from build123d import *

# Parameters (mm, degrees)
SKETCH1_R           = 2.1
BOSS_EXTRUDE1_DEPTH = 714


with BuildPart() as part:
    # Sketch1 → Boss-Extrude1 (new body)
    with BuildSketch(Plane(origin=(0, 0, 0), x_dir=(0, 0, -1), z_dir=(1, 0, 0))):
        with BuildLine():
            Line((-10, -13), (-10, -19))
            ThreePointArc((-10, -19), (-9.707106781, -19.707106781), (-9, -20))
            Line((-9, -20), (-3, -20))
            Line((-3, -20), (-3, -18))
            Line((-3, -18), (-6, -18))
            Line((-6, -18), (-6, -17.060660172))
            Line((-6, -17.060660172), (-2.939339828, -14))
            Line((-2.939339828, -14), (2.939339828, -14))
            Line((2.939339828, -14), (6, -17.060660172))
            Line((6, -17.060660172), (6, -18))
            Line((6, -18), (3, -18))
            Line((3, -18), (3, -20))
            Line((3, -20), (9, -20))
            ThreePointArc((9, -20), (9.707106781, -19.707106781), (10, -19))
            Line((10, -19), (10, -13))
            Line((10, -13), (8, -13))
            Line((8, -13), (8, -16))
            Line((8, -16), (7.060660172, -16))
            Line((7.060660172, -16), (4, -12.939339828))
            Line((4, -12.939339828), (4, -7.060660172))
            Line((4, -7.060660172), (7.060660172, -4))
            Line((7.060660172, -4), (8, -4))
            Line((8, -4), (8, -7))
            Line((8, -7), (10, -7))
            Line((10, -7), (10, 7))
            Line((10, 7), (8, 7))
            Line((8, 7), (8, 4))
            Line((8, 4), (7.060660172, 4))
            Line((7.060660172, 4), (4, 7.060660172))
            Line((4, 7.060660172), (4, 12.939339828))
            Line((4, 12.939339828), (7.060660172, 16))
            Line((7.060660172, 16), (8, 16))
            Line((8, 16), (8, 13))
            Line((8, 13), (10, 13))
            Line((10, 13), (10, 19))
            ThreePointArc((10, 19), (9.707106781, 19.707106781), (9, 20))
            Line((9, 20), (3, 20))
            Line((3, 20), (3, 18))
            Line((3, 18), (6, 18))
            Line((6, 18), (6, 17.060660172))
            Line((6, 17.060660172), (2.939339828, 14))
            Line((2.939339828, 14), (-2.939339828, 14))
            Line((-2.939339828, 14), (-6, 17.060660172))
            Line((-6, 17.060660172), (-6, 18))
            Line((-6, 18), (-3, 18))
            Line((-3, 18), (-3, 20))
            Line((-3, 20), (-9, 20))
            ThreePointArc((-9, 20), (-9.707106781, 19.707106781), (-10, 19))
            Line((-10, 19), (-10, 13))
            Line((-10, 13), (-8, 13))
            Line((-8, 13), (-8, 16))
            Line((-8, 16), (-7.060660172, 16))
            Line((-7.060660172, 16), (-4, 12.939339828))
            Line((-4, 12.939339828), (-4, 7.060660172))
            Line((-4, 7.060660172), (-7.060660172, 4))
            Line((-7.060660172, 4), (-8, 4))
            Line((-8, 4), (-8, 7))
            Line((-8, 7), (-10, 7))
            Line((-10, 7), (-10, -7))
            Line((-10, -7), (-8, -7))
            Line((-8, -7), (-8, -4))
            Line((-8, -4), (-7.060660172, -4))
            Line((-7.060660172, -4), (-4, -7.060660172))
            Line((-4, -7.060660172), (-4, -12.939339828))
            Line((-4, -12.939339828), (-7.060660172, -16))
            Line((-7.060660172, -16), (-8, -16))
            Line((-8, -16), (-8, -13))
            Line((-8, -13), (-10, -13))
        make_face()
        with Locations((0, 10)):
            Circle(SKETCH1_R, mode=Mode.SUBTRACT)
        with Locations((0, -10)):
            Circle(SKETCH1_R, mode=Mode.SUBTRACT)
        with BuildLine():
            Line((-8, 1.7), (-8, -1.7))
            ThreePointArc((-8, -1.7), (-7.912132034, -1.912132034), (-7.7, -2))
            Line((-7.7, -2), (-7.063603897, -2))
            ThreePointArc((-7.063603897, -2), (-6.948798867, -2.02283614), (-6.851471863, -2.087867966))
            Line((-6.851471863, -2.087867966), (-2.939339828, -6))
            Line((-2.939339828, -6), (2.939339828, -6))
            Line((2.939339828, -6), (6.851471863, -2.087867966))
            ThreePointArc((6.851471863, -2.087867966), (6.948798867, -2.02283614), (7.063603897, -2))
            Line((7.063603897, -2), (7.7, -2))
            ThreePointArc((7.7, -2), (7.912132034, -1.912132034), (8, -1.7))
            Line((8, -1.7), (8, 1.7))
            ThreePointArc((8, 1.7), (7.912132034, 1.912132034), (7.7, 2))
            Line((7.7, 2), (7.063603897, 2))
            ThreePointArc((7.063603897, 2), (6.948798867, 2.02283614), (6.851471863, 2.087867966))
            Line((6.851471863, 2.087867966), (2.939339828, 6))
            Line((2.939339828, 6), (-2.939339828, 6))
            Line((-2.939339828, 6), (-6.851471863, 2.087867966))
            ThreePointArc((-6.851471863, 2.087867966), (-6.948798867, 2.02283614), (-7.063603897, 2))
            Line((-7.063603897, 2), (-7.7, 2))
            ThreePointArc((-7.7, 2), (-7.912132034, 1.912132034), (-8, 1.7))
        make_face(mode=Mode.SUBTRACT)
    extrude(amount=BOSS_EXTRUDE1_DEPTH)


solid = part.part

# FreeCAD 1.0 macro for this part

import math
import FreeCAD as App
import Part
import Sketcher
from FreeCAD import Vector
Q = App.Units.Quantity

doc = App.newDocument("Part")
body = doc.addObject("PartDesign::Body", "Body")

sketch1 = doc.addObject("Sketcher::SketchObject", "Sketch")
body.addObject(sketch1)
sketch1.AttachmentSupport = (doc.YZ_Plane, [""])
sketch1.MapMode = "FlatFace"
sketch1.addGeometry([
    Part.LineSegment(Vector(-13, 10, 0), Vector(-19, 10, 0)),
    Part.ArcOfCircle(Part.Circle(Vector(-19, 9, 0), Vector(0, 0, 1), 1), math.radians(90), math.radians(180)),
    Part.LineSegment(Vector(-20, 9, 0), Vector(-20, 3, 0)),
    Part.LineSegment(Vector(-20, 3, 0), Vector(-18, 3, 0)),
    Part.LineSegment(Vector(-18, 3, 0), Vector(-18, 6, 0)),
    Part.LineSegment(Vector(-18, 6, 0), Vector(-17.06066, 6, 0)),
    Part.LineSegment(Vector(-17.06066, 6, 0), Vector(-14, 2.93934, 0)),
    Part.LineSegment(Vector(-14, 2.93934, 0), Vector(-14, -2.93934, 0)),
    Part.LineSegment(Vector(-14, -2.93934, 0), Vector(-17.06066, -6, 0)),
    Part.LineSegment(Vector(-17.06066, -6, 0), Vector(-18, -6, 0)),
    Part.LineSegment(Vector(-18, -6, 0), Vector(-18, -3, 0)),
    Part.LineSegment(Vector(-18, -3, 0), Vector(-20, -3, 0)),
    Part.LineSegment(Vector(-20, -3, 0), Vector(-20, -9, 0)),
    Part.ArcOfCircle(Part.Circle(Vector(-19, -9, 0), Vector(0, 0, 1), 1), math.radians(-180), math.radians(-90)),
    Part.LineSegment(Vector(-19, -10, 0), Vector(-13, -10, 0)),
    Part.LineSegment(Vector(-13, -10, 0), Vector(-13, -8, 0)),
    Part.LineSegment(Vector(-13, -8, 0), Vector(-16, -8, 0)),
    Part.LineSegment(Vector(-16, -8, 0), Vector(-16, -7.06066, 0)),
    Part.LineSegment(Vector(-16, -7.06066, 0), Vector(-12.93934, -4, 0)),
    Part.LineSegment(Vector(-12.93934, -4, 0), Vector(-7.06066, -4, 0)),
    Part.LineSegment(Vector(-7.06066, -4, 0), Vector(-4, -7.06066, 0)),
    Part.LineSegment(Vector(-4, -7.06066, 0), Vector(-4, -8, 0)),
    Part.LineSegment(Vector(-4, -8, 0), Vector(-7, -8, 0)),
    Part.LineSegment(Vector(-7, -8, 0), Vector(-7, -10, 0)),
    Part.LineSegment(Vector(-7, -10, 0), Vector(7, -10, 0)),
    Part.LineSegment(Vector(7, -10, 0), Vector(7, -8, 0)),
    Part.LineSegment(Vector(7, -8, 0), Vector(4, -8, 0)),
    Part.LineSegment(Vector(4, -8, 0), Vector(4, -7.06066, 0)),
    Part.LineSegment(Vector(4, -7.06066, 0), Vector(7.06066, -4, 0)),
    Part.LineSegment(Vector(7.06066, -4, 0), Vector(12.93934, -4, 0)),
    Part.LineSegment(Vector(12.93934, -4, 0), Vector(16, -7.06066, 0)),
    Part.LineSegment(Vector(16, -7.06066, 0), Vector(16, -8, 0)),
    Part.LineSegment(Vector(16, -8, 0), Vector(13, -8, 0)),
    Part.LineSegment(Vector(13, -8, 0), Vector(13, -10, 0)),
    Part.LineSegment(Vector(13, -10, 0), Vector(19, -10, 0)),
    Part.ArcOfCircle(Part.Circle(Vector(19, -9, 0), Vector(0, 0, 1), 1), math.radians(-90), math.radians(0)),
    Part.LineSegment(Vector(20, -9, 0), Vector(20, -3, 0)),
    Part.LineSegment(Vector(20, -3, 0), Vector(18, -3, 0)),
    Part.LineSegment(Vector(18, -3, 0), Vector(18, -6, 0)),
    Part.LineSegment(Vector(18, -6, 0), Vector(17.06066, -6, 0)),
    Part.LineSegment(Vector(17.06066, -6, 0), Vector(14, -2.93934, 0)),
    Part.LineSegment(Vector(14, -2.93934, 0), Vector(14, 2.93934, 0)),
    Part.LineSegment(Vector(14, 2.93934, 0), Vector(17.06066, 6, 0)),
    Part.LineSegment(Vector(17.06066, 6, 0), Vector(18, 6, 0)),
    Part.LineSegment(Vector(18, 6, 0), Vector(18, 3, 0)),
    Part.LineSegment(Vector(18, 3, 0), Vector(20, 3, 0)),
    Part.LineSegment(Vector(20, 3, 0), Vector(20, 9, 0)),
    Part.ArcOfCircle(Part.Circle(Vector(19, 9, 0), Vector(0, 0, 1), 1), math.radians(0), math.radians(90)),
    Part.LineSegment(Vector(19, 10, 0), Vector(13, 10, 0)),
    Part.LineSegment(Vector(13, 10, 0), Vector(13, 8, 0)),
    Part.LineSegment(Vector(13, 8, 0), Vector(16, 8, 0)),
    Part.LineSegment(Vector(16, 8, 0), Vector(16, 7.06066, 0)),
    Part.LineSegment(Vector(16, 7.06066, 0), Vector(12.93934, 4, 0)),
    Part.LineSegment(Vector(12.93934, 4, 0), Vector(7.06066, 4, 0)),
    Part.LineSegment(Vector(7.06066, 4, 0), Vector(4, 7.06066, 0)),
    Part.LineSegment(Vector(4, 7.06066, 0), Vector(4, 8, 0)),
    Part.LineSegment(Vector(4, 8, 0), Vector(7, 8, 0)),
    Part.LineSegment(Vector(7, 8, 0), Vector(7, 10, 0)),
    Part.LineSegment(Vector(7, 10, 0), Vector(-7, 10, 0)),
    Part.LineSegment(Vector(-7, 10, 0), Vector(-7, 8, 0)),
    Part.LineSegment(Vector(-7, 8, 0), Vector(-4, 8, 0)),
    Part.LineSegment(Vector(-4, 8, 0), Vector(-4, 7.06066, 0)),
    Part.LineSegment(Vector(-4, 7.06066, 0), Vector(-7.06066, 4, 0)),
    Part.LineSegment(Vector(-7.06066, 4, 0), Vector(-12.93934, 4, 0)),
    Part.LineSegment(Vector(-12.93934, 4, 0), Vector(-16, 7.06066, 0)),
    Part.LineSegment(Vector(-16, 7.06066, 0), Vector(-16, 8, 0)),
    Part.LineSegment(Vector(-16, 8, 0), Vector(-13, 8, 0)),
    Part.LineSegment(Vector(-13, 8, 0), Vector(-13, 10, 0)),
    Part.Circle(Vector(-10, 0, 0), Vector(0, 0, 1), 2.1),
    Part.LineSegment(Vector(-1.7, 8, 0), Vector(1.7, 8, 0)),
    Part.ArcOfCircle(Part.Circle(Vector(1.7, 7.7, 0), Vector(0, 0, 1), 0.3), math.radians(0), math.radians(90)),
    Part.LineSegment(Vector(2, 7.7, 0), Vector(2, 7.063604, 0)),
    Part.ArcOfCircle(Part.Circle(Vector(2.3, 7.063604, 0), Vector(0, 0, 1), 0.3), math.radians(180), math.radians(225.000001)),
    Part.LineSegment(Vector(2.087868, 6.851472, 0), Vector(6, 2.93934, 0)),
    Part.LineSegment(Vector(6, 2.93934, 0), Vector(6, -2.93934, 0)),
    Part.LineSegment(Vector(6, -2.93934, 0), Vector(2.087868, -6.851472, 0)),
    Part.ArcOfCircle(Part.Circle(Vector(2.3, -7.063604, 0), Vector(0, 0, 1), 0.3), math.radians(134.999999), math.radians(180)),
    Part.LineSegment(Vector(2, -7.063604, 0), Vector(2, -7.7, 0)),
    Part.ArcOfCircle(Part.Circle(Vector(1.7, -7.7, 0), Vector(0, 0, 1), 0.3), math.radians(-90), math.radians(0)),
    Part.LineSegment(Vector(1.7, -8, 0), Vector(-1.7, -8, 0)),
    Part.ArcOfCircle(Part.Circle(Vector(-1.7, -7.7, 0), Vector(0, 0, 1), 0.3), math.radians(-180), math.radians(-90)),
    Part.LineSegment(Vector(-2, -7.7, 0), Vector(-2, -7.063604, 0)),
    Part.ArcOfCircle(Part.Circle(Vector(-2.3, -7.063604, 0), Vector(0, 0, 1), 0.3), math.radians(0), math.radians(45.000001)),
    Part.LineSegment(Vector(-2.087868, -6.851472, 0), Vector(-6, -2.93934, 0)),
    Part.LineSegment(Vector(-6, -2.93934, 0), Vector(-6, 2.93934, 0)),
    Part.LineSegment(Vector(-6, 2.93934, 0), Vector(-2.087868, 6.851472, 0)),
    Part.ArcOfCircle(Part.Circle(Vector(-2.3, 7.063604, 0), Vector(0, 0, 1), 0.3), math.radians(-45.000001), math.radians(0)),
    Part.LineSegment(Vector(-2, 7.063604, 0), Vector(-2, 7.7, 0)),
    Part.ArcOfCircle(Part.Circle(Vector(-1.7, 7.7, 0), Vector(0, 0, 1), 0.3), math.radians(90), math.radians(180)),
    Part.Circle(Vector(10, 0, 0), Vector(0, 0, 1), 2.1),
], False)
sketch1.addConstraint([
    Sketcher.Constraint("Tangent", 0, 2, 1, 1),
    Sketcher.Constraint("Tangent", 1, 2, 2, 1),
    Sketcher.Constraint("Coincident", 2, 2, 3, 1),
    Sketcher.Constraint("Coincident", 3, 2, 4, 1),
    Sketcher.Constraint("Coincident", 4, 2, 5, 1),
    Sketcher.Constraint("Coincident", 5, 2, 6, 1),
    Sketcher.Constraint("Coincident", 6, 2, 7, 1),
    Sketcher.Constraint("Coincident", 7, 2, 8, 1),
    Sketcher.Constraint("Coincident", 8, 2, 9, 1),
    Sketcher.Constraint("Coincident", 9, 2, 10, 1),
    Sketcher.Constraint("Coincident", 10, 2, 11, 1),
    Sketcher.Constraint("Coincident", 11, 2, 12, 1),
    Sketcher.Constraint("Tangent", 12, 2, 13, 1),
    Sketcher.Constraint("Tangent", 13, 2, 14, 1),
    Sketcher.Constraint("Coincident", 14, 2, 15, 1),
    Sketcher.Constraint("Coincident", 15, 2, 16, 1),
    Sketcher.Constraint("Coincident", 16, 2, 17, 1),
    Sketcher.Constraint("Coincident", 17, 2, 18, 1),
    Sketcher.Constraint("Coincident", 18, 2, 19, 1),
    Sketcher.Constraint("Coincident", 19, 2, 20, 1),
    Sketcher.Constraint("Coincident", 20, 2, 21, 1),
    Sketcher.Constraint("Coincident", 21, 2, 22, 1),
    Sketcher.Constraint("Coincident", 22, 2, 23, 1),
    Sketcher.Constraint("Coincident", 23, 2, 24, 1),
    Sketcher.Constraint("Coincident", 24, 2, 25, 1),
    Sketcher.Constraint("Coincident", 25, 2, 26, 1),
    Sketcher.Constraint("Coincident", 26, 2, 27, 1),
    Sketcher.Constraint("Coincident", 27, 2, 28, 1),
    Sketcher.Constraint("Coincident", 28, 2, 29, 1),
    Sketcher.Constraint("Coincident", 29, 2, 30, 1),
    Sketcher.Constraint("Coincident", 30, 2, 31, 1),
    Sketcher.Constraint("Coincident", 31, 2, 32, 1),
    Sketcher.Constraint("Coincident", 32, 2, 33, 1),
    Sketcher.Constraint("Coincident", 33, 2, 34, 1),
    Sketcher.Constraint("Tangent", 34, 2, 35, 1),
    Sketcher.Constraint("Tangent", 35, 2, 36, 1),
    Sketcher.Constraint("Coincident", 36, 2, 37, 1),
    Sketcher.Constraint("Coincident", 37, 2, 38, 1),
    Sketcher.Constraint("Coincident", 38, 2, 39, 1),
    Sketcher.Constraint("Coincident", 39, 2, 40, 1),
    Sketcher.Constraint("Coincident", 40, 2, 41, 1),
    Sketcher.Constraint("Coincident", 41, 2, 42, 1),
    Sketcher.Constraint("Coincident", 42, 2, 43, 1),
    Sketcher.Constraint("Coincident", 43, 2, 44, 1),
    Sketcher.Constraint("Coincident", 44, 2, 45, 1),
    Sketcher.Constraint("Coincident", 45, 2, 46, 1),
    Sketcher.Constraint("Tangent", 46, 2, 47, 1),
    Sketcher.Constraint("Tangent", 47, 2, 48, 1),
    Sketcher.Constraint("Coincident", 48, 2, 49, 1),
    Sketcher.Constraint("Coincident", 49, 2, 50, 1),
    Sketcher.Constraint("Coincident", 50, 2, 51, 1),
    Sketcher.Constraint("Coincident", 51, 2, 52, 1),
    Sketcher.Constraint("Coincident", 52, 2, 53, 1),
    Sketcher.Constraint("Coincident", 53, 2, 54, 1),
    Sketcher.Constraint("Coincident", 54, 2, 55, 1),
    Sketcher.Constraint("Coincident", 55, 2, 56, 1),
    Sketcher.Constraint("Coincident", 56, 2, 57, 1),
    Sketcher.Constraint("Coincident", 57, 2, 58, 1),
    Sketcher.Constraint("Coincident", 58, 2, 59, 1),
    Sketcher.Constraint("Coincident", 59, 2, 60, 1),
    Sketcher.Constraint("Coincident", 60, 2, 61, 1),
    Sketcher.Constraint("Coincident", 61, 2, 62, 1),
    Sketcher.Constraint("Coincident", 62, 2, 63, 1),
    Sketcher.Constraint("Coincident", 63, 2, 64, 1),
    Sketcher.Constraint("Coincident", 64, 2, 65, 1),
    Sketcher.Constraint("Coincident", 65, 2, 66, 1),
    Sketcher.Constraint("Coincident", 66, 2, 67, 1),
    Sketcher.Constraint("Coincident", 67, 2, 0, 1),
    Sketcher.Constraint("Tangent", 69, 2, 70, 2),
    Sketcher.Constraint("Tangent", 70, 1, 71, 1),
    Sketcher.Constraint("Tangent", 71, 2, 72, 1),
    Sketcher.Constraint("Tangent", 72, 2, 73, 1),
    Sketcher.Constraint("Coincident", 73, 2, 74, 1),
    Sketcher.Constraint("Coincident", 74, 2, 75, 1),
    Sketcher.Constraint("Tangent", 75, 2, 76, 1),
    Sketcher.Constraint("Tangent", 76, 2, 77, 1),
    Sketcher.Constraint("Tangent", 77, 2, 78, 2),
    Sketcher.Constraint("Tangent", 78, 1, 79, 1),
    Sketcher.Constraint("Tangent", 79, 2, 80, 2),
    Sketcher.Constraint("Tangent", 80, 1, 81, 1),
    Sketcher.Constraint("Tangent", 81, 2, 82, 1),
    Sketcher.Constraint("Tangent", 82, 2, 83, 1),
    Sketcher.Constraint("Coincident", 83, 2, 84, 1),
    Sketcher.Constraint("Coincident", 84, 2, 85, 1),
    Sketcher.Constraint("Tangent", 85, 2, 86, 1),
    Sketcher.Constraint("Tangent", 86, 2, 87, 1),
    Sketcher.Constraint("Tangent", 87, 2, 88, 2),
    Sketcher.Constraint("Tangent", 88, 1, 69, 1),
    Sketcher.Constraint("Horizontal", 0),
    Sketcher.Constraint("Vertical", 2),
    Sketcher.Constraint("Horizontal", 3),
    Sketcher.Constraint("Vertical", 4),
    Sketcher.Constraint("Horizontal", 5),
    Sketcher.Constraint("Vertical", 7),
    Sketcher.Constraint("Horizontal", 9),
    Sketcher.Constraint("Vertical", 10),
    Sketcher.Constraint("Horizontal", 11),
    Sketcher.Constraint("Vertical", 12),
    Sketcher.Constraint("Horizontal", 14),
    Sketcher.Constraint("Vertical", 15),
    Sketcher.Constraint("Horizontal", 16),
    Sketcher.Constraint("Vertical", 17),
    Sketcher.Constraint("Horizontal", 19),
    Sketcher.Constraint("Vertical", 21),
    Sketcher.Constraint("Horizontal", 22),
    Sketcher.Constraint("Vertical", 23),
    Sketcher.Constraint("Horizontal", 24),
    Sketcher.Constraint("Vertical", 25),
    Sketcher.Constraint("Horizontal", 26),
    Sketcher.Constraint("Vertical", 27),
    Sketcher.Constraint("Horizontal", 29),
    Sketcher.Constraint("Vertical", 31),
    Sketcher.Constraint("Horizontal", 32),
    Sketcher.Constraint("Vertical", 33),
    Sketcher.Constraint("Horizontal", 34),
    Sketcher.Constraint("Vertical", 36),
    Sketcher.Constraint("Horizontal", 37),
    Sketcher.Constraint("Vertical", 38),
    Sketcher.Constraint("Horizontal", 39),
    Sketcher.Constraint("Vertical", 41),
    Sketcher.Constraint("Horizontal", 43),
    Sketcher.Constraint("Vertical", 44),
    Sketcher.Constraint("Horizontal", 45),
    Sketcher.Constraint("Vertical", 46),
    Sketcher.Constraint("Horizontal", 48),
    Sketcher.Constraint("Vertical", 49),
    Sketcher.Constraint("Horizontal", 50),
    Sketcher.Constraint("Vertical", 51),
    Sketcher.Constraint("Horizontal", 53),
    Sketcher.Constraint("Vertical", 55),
    Sketcher.Constraint("Horizontal", 56),
    Sketcher.Constraint("Vertical", 57),
    Sketcher.Constraint("Horizontal", 58),
    Sketcher.Constraint("Vertical", 59),
    Sketcher.Constraint("Horizontal", 60),
    Sketcher.Constraint("Vertical", 61),
    Sketcher.Constraint("Horizontal", 63),
    Sketcher.Constraint("Vertical", 65),
    Sketcher.Constraint("Horizontal", 66),
    Sketcher.Constraint("Vertical", 67),
    Sketcher.Constraint("Horizontal", 69),
    Sketcher.Constraint("Vertical", 71),
    Sketcher.Constraint("Vertical", 74),
    Sketcher.Constraint("Vertical", 77),
    Sketcher.Constraint("Horizontal", 79),
    Sketcher.Constraint("Vertical", 81),
    Sketcher.Constraint("Vertical", 84),
    Sketcher.Constraint("Vertical", 87),
    Sketcher.Constraint("Equal", 1, 13),
    Sketcher.Constraint("Equal", 13, 35),
    Sketcher.Constraint("Equal", 35, 47),
    Sketcher.Constraint("Equal", 70, 72),
    Sketcher.Constraint("Equal", 72, 76),
    Sketcher.Constraint("Equal", 76, 78),
    Sketcher.Constraint("Equal", 78, 80),
    Sketcher.Constraint("Equal", 80, 82),
    Sketcher.Constraint("Equal", 82, 86),
    Sketcher.Constraint("Equal", 86, 88),
    Sketcher.Constraint("Equal", 68, 89),
    Sketcher.Constraint("Symmetric", 1, 3, 35, 3, -1, 1),
    Sketcher.Constraint("Symmetric", 13, 3, 47, 3, -1, 1),
    Sketcher.Constraint("Symmetric", 70, 3, 80, 3, -1, 1),
    Sketcher.Constraint("Symmetric", 76, 3, 86, 3, -1, 1),
    Sketcher.Constraint("Symmetric", 68, 3, 89, 3, -1, 1),
    Sketcher.Constraint("Symmetric", 3, 2, 37, 2, -1, 1),
    Sketcher.Constraint("Symmetric", 5, 2, 39, 2, -1, 1),
    Sketcher.Constraint("Symmetric", 6, 2, 40, 2, -1, 1),
    Sketcher.Constraint("Symmetric", 8, 2, 42, 2, -1, 1),
    Sketcher.Constraint("Symmetric", 10, 2, 44, 2, -1, 1),
    Sketcher.Constraint("Symmetric", 15, 2, 49, 2, -1, 1),
    Sketcher.Constraint("Symmetric", 17, 2, 51, 2, -1, 1),
    Sketcher.Constraint("Symmetric", 18, 2, 52, 2, -1, 1),
    Sketcher.Constraint("Symmetric", 20, 2, 54, 2, -1, 1),
    Sketcher.Constraint("Symmetric", 22, 2, 56, 2, -1, 1),
    Sketcher.Constraint("Symmetric", 24, 2, 58, 2, -1, 1),
    Sketcher.Constraint("Symmetric", 26, 2, 60, 2, -1, 1),
    Sketcher.Constraint("Symmetric", 28, 2, 62, 2, -1, 1),
    Sketcher.Constraint("Symmetric", 30, 2, 64, 2, -1, 1),
    Sketcher.Constraint("Symmetric", 32, 2, 66, 2, -1, 1),
    Sketcher.Constraint("Symmetric", 72, 2, 82, 2, -1, 1),
    Sketcher.Constraint("Symmetric", 74, 2, 84, 2, -1, 1),
    Sketcher.Constraint("Symmetric", 13, 3, 35, 3, -2),
    Sketcher.Constraint("Symmetric", 76, 3, 82, 3, -2),
    Sketcher.Constraint("Symmetric", 22, 2, 25, 2, -2),
    Sketcher.Constraint("Symmetric", 20, 2, 27, 2, -2),
    Sketcher.Constraint("Symmetric", 19, 2, 28, 2, -2),
    Sketcher.Constraint("Symmetric", 17, 2, 30, 2, -2),
    Sketcher.Constraint("Symmetric", 15, 2, 32, 2, -2),
    Sketcher.Constraint("Symmetric", 10, 2, 37, 2, -2),
    Sketcher.Constraint("Symmetric", 8, 2, 39, 2, -2),
    Sketcher.Constraint("PointOnObject", 68, 3, -1),
    Sketcher.Constraint("Perpendicular", 6, 8),
    Sketcher.Constraint("Parallel", 8, 18),
    Sketcher.Constraint("Perpendicular", 18, 20),
    Sketcher.Constraint("Perpendicular", 20, 28),
    Sketcher.Constraint("Perpendicular", 28, 30),
    Sketcher.Constraint("Perpendicular", 40, 42),
    Sketcher.Constraint("Perpendicular", 52, 54),
    Sketcher.Constraint("Perpendicular", 54, 62),
    Sketcher.Constraint("Perpendicular", 62, 64),
    Sketcher.Constraint("Parallel", 64, 73),
    Sketcher.Constraint("Perpendicular", 73, 75),
    Sketcher.Constraint("Horizontal", 17, 2, 20, 2),
    Sketcher.Constraint("Horizontal", 16, 2, 21, 2),
    Sketcher.Constraint("Horizontal", 14, 2, 23, 2),
    Sketcher.Constraint("Horizontal", 66, 2, 69, 2),
    Sketcher.Constraint("Horizontal", 41, 2, 73, 2),
    Sketcher.Constraint("Equal", 16, 22),
    Sketcher.Constraint("Equal", 48, 2),
    Sketcher.Constraint("Equal", 66, 4),
    Sketcher.Constraint("Equal", 63, 7),
    Sketcher.Constraint("Equal", 45, 15),
    Sketcher.Constraint("Equal", 43, 17),
    Sketcher.Constraint("Equal", 8, 18),
    Sketcher.Constraint("Radius", 1, Q("1 mm")),
    Sketcher.Constraint("Diameter", 68, Q("4.2 mm")),
    Sketcher.Constraint("Radius", 70, Q("0.3 mm")),
    Sketcher.Constraint("DistanceX", 0, 2, 0, 1, Q("6 mm")),
    Sketcher.Constraint("DistanceX", 3, 1, 3, 2, Q("2 mm")),
    Sketcher.Constraint("DistanceX", 16, 2, 16, 1, Q("3 mm")),
    Sketcher.Constraint("DistanceX", 24, 1, 24, 2, Q("14 mm")),
    Sketcher.Constraint("DistanceX", 69, 1, 69, 2, Q("3.4 mm")),
    Sketcher.Constraint("DistanceX", 1, 3, -1, 1, Q("19 mm")),
    Sketcher.Constraint("DistanceX", 68, 3, -1, 1, Q("10 mm")),
    Sketcher.Constraint("DistanceX", 6, 2, -1, 1, Q("14 mm")),
    Sketcher.Constraint("DistanceX", -1, 1, 73, 2, Q("6 mm")),
    Sketcher.Constraint("DistanceX", 5, 1, 5, 2, Q("0.93934 mm")),
])
pad1 = doc.addObject("PartDesign::Pad", "Pad")
body.addObject(pad1)
pad1.Profile = sketch1
pad1.Length = 714

doc.recompute()
